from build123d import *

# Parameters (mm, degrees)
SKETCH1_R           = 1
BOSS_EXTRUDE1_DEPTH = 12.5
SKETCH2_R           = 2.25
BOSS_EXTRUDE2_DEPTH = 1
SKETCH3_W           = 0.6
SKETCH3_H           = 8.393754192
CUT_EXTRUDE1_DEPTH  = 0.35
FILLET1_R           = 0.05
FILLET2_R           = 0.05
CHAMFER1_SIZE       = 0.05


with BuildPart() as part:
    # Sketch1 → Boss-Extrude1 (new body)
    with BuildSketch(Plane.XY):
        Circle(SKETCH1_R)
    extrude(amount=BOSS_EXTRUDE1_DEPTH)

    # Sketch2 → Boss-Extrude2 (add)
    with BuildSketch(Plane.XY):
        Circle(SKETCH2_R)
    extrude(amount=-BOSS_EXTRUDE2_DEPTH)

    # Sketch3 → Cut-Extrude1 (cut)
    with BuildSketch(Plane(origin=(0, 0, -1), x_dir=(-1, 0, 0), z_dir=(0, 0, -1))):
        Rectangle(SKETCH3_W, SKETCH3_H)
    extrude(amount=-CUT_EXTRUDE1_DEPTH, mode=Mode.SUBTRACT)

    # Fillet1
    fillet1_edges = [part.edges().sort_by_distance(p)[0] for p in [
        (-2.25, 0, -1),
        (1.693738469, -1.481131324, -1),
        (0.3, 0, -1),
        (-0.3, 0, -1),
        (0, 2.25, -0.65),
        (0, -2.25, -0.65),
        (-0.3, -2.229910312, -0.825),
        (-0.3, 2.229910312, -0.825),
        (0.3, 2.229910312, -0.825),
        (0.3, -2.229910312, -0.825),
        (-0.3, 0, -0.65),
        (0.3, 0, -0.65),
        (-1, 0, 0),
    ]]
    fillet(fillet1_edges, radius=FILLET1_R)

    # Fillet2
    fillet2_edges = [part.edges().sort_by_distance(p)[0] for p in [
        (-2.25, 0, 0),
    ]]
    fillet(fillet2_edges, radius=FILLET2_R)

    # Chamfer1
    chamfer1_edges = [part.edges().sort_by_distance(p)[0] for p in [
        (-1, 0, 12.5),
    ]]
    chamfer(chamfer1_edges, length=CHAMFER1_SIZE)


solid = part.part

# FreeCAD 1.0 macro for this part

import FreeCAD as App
import Part
import Sketcher
from FreeCAD import Vector
Q = App.Units.Quantity


def edges_at(feature, points):
    """Names of the edges that pass closest to the given points."""
    edges = feature.Shape.Edges
    near = lambda p: min(range(len(edges)), key=lambda i: edges[i].distToShape(Part.Vertex(*p))[0])
    return sorted({f"Edge{near(p) + 1}" for p in points})


def add_polygon(sketch, points):
    """Adds a closed chain of lines whose ends are joined by coincident constraints."""
    first, n = sketch.GeometryCount, len(points)
    for a, b in zip(points, points[1:] + points[:1]):
        sketch.addGeometry(Part.LineSegment(App.Vector(*a, 0), App.Vector(*b, 0)), False)
    for i in range(n):
        sketch.addConstraint(Sketcher.Constraint("Coincident", first + i, 2, first + (i + 1) % n, 1))

doc = App.newDocument("Part")
body = doc.addObject("PartDesign::Body", "Body")

# Sketch on XY plane
sketch1 = doc.addObject("Sketcher::SketchObject", "Sketch")
body.addObject(sketch1)
sketch1.AttachmentSupport = (doc.XY_Plane, [""])
sketch1.MapMode = "FlatFace"
sketch1.addGeometry(Part.Circle(Vector(0, 0, 0), Vector(0, 0, 1), 1), False)
sketch1.addConstraint(Sketcher.Constraint("Coincident", 0, 3, -1, 1))
sketch1.addConstraint(Sketcher.Constraint("Diameter", 0, Q("2 mm")))
pad1 = doc.addObject("PartDesign::Pad", "Pad")
body.addObject(pad1)
pad1.Profile = sketch1
pad1.Length = 12.5

# Sketch on XY plane
sketch2 = doc.addObject("Sketcher::SketchObject", "Sketch001")
body.addObject(sketch2)
sketch2.AttachmentSupport = (doc.XY_Plane, [""])
sketch2.MapMode = "FlatFace"
sketch2.addGeometry(Part.Circle(Vector(0, 0, 0), Vector(0, 0, 1), 2.2), False)
sketch2.addConstraint(Sketcher.Constraint("Coincident", 0, 3, -1, 1))
sketch2.addConstraint(Sketcher.Constraint("Diameter", 0, Q("4.5 mm")))
pad2 = doc.addObject("PartDesign::Pad", "Pad001")
body.addObject(pad2)
pad2.Profile = sketch2
pad2.Length = 1
pad2.Reversed = True

# Sketch on XY plane
sketch3 = doc.addObject("Sketcher::SketchObject", "Sketch002")
body.addObject(sketch3)
sketch3.AttachmentSupport = (doc.XY_Plane, [""])
sketch3.MapMode = "FlatFace"
sketch3.AttachmentOffset = App.Placement(Vector(0, 0, -1), App.Rotation())
add_polygon(sketch3, [(0.3, 4.2), (0.3, -4.2), (-0.3, -4.2), (-0.3, 4.2)])  # lines 0-3
sketch3.addConstraint(Sketcher.Constraint("Vertical", 0))
sketch3.addConstraint(Sketcher.Constraint("Horizontal", 1))
sketch3.addConstraint(Sketcher.Constraint("Vertical", 2))
sketch3.addConstraint(Sketcher.Constraint("Horizontal", 3))
sketch3.addConstraint(Sketcher.Constraint("Symmetric", 0, 2, 2, 2, -1, 1))
sketch3.addConstraint(Sketcher.Constraint("DistanceX", 1, 2, 1, 1, Q("0.6 mm")))
sketch3.addConstraint(Sketcher.Constraint("DistanceY", 0, 2, 0, 1, Q("8.393754 mm")))
pocket1 = doc.addObject("PartDesign::Pocket", "Pocket")
body.addObject(pocket1)
pocket1.Profile = sketch3
pocket1.Length = 0.35
pocket1.Reversed = True
doc.recompute()

fillet = doc.addObject("PartDesign::Fillet", "Fillet")
body.addObject(fillet)
fillet.Base = (pocket1, edges_at(pocket1, [
    (-2.25, 0, -1),
    (1.694, -1.481, -1),
    (0.3, 0, -1),
    (-0.3, 0, -1),
    (0, 2.25, -0.65),
    (0, -2.25, -0.65),
    (-0.3, -2.23, -0.825),
    (-0.3, 2.23, -0.825),
    (0.3, 2.23, -0.825),
    (0.3, -2.23, -0.825),
    (-0.3, 0, -0.65),
    (0.3, 0, -0.65),
    (-1, 0, 0),
]))
fillet.Radius = 0.05
doc.recompute()

fillet2 = doc.addObject("PartDesign::Fillet", "Fillet001")
body.addObject(fillet2)
fillet2.Base = (fillet, edges_at(fillet, [(-2.25, 0, 0)]))
fillet2.Radius = 0.05
doc.recompute()

chamfer = doc.addObject("PartDesign::Chamfer", "Chamfer")
body.addObject(chamfer)
chamfer.Base = (fillet2, edges_at(fillet2, [(-1, 0, 12.5)]))
chamfer.Size = 0.05

doc.recompute()
